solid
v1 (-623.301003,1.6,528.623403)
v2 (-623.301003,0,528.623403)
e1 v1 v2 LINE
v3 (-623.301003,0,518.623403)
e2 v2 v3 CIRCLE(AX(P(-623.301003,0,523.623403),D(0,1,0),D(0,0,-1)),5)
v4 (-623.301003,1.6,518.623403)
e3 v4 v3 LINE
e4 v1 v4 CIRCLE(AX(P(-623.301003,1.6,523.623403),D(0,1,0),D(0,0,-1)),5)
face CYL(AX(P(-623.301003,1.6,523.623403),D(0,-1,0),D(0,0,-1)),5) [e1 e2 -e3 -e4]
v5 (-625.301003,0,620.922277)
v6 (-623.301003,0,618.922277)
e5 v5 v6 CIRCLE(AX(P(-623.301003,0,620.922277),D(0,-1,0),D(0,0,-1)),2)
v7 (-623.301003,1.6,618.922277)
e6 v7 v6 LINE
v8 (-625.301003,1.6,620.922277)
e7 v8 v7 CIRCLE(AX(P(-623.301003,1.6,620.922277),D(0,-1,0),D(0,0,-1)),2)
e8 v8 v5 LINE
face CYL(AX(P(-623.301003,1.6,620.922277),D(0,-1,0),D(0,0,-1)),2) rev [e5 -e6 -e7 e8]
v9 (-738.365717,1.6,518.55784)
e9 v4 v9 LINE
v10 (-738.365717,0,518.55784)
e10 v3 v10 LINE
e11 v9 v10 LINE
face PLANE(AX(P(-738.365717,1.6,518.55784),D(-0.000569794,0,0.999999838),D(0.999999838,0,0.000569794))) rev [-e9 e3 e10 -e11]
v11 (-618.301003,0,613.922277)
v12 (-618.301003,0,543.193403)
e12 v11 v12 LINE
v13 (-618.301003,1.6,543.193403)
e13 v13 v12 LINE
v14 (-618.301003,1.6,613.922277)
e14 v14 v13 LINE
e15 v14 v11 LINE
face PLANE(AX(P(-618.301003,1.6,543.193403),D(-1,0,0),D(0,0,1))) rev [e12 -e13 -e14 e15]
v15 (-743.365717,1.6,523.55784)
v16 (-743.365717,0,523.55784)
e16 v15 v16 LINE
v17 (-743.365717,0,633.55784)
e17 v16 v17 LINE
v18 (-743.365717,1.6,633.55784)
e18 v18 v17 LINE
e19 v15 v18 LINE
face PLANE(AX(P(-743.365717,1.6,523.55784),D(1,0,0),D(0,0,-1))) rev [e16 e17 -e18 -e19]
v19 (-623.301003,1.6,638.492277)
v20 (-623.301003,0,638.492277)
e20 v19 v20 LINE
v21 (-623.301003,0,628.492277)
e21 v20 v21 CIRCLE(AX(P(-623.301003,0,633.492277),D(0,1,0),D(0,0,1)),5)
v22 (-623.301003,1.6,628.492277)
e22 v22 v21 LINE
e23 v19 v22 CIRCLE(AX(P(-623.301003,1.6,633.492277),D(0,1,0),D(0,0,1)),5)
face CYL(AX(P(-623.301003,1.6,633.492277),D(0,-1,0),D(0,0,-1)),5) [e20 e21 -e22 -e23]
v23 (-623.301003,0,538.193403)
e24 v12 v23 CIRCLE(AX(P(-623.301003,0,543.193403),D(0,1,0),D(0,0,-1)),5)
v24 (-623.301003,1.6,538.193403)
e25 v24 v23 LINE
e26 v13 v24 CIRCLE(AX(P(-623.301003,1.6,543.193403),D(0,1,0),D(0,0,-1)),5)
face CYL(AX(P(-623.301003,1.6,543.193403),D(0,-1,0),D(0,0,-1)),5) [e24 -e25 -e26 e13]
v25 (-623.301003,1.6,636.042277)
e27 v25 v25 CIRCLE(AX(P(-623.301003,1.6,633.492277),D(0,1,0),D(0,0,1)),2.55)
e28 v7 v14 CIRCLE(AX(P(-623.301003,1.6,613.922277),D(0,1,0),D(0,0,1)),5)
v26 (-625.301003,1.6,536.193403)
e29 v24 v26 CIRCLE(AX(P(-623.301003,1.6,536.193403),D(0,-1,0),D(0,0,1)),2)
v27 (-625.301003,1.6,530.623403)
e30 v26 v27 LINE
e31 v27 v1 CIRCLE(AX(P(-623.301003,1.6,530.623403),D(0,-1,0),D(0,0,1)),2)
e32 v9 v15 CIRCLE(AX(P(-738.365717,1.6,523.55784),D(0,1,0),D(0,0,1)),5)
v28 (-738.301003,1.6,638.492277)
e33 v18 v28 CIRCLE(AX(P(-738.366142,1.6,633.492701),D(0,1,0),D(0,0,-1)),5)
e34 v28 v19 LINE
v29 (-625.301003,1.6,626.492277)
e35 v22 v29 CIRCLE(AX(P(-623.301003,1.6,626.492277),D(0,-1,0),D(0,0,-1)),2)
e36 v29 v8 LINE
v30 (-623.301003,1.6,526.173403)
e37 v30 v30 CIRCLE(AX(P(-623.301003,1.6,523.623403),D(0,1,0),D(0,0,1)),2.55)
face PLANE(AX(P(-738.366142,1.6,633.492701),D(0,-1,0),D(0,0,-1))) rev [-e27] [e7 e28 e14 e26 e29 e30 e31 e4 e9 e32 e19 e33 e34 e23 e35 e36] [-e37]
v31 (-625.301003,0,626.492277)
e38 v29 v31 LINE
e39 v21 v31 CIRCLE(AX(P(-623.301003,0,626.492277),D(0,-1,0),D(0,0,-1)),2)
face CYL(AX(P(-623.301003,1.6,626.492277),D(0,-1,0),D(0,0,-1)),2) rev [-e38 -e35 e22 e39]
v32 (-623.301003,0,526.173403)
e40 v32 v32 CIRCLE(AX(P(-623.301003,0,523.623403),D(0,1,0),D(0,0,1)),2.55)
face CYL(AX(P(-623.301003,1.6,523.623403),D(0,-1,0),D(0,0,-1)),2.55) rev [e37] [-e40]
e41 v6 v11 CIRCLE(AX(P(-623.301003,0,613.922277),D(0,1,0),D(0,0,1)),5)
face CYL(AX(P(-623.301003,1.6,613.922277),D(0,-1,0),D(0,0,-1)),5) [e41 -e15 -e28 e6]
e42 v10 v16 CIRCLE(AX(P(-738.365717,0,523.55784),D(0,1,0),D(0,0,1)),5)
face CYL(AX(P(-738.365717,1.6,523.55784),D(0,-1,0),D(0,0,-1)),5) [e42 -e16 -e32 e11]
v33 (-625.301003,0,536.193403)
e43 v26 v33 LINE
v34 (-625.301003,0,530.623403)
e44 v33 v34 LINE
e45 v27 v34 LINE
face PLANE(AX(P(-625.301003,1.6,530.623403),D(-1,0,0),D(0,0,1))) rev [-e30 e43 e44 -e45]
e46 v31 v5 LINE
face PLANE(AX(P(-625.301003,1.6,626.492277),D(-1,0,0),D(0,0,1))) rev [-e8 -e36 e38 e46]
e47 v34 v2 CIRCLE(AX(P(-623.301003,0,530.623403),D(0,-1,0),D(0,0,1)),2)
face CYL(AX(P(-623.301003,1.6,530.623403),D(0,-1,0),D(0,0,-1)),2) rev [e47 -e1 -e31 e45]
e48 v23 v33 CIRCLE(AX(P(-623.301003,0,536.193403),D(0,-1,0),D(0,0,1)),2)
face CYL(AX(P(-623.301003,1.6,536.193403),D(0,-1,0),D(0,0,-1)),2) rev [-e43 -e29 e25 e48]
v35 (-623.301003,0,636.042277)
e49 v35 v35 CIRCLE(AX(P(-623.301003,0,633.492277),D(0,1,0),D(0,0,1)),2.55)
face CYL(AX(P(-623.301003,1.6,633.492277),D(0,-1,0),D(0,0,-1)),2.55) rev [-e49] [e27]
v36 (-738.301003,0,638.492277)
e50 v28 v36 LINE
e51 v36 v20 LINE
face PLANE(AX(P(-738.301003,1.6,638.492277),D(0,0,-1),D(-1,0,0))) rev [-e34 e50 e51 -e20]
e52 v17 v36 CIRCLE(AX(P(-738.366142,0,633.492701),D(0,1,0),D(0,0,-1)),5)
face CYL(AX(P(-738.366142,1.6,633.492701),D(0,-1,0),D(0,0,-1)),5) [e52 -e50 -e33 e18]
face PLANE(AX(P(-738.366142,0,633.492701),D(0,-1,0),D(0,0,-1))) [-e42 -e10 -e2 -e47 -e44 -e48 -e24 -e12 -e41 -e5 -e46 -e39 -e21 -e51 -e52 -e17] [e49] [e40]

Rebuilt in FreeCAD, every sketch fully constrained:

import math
import FreeCAD as App
import Part
import Sketcher

V = App.Vector
Q = App.Units.Quantity

doc = App.newDocument("Part")
body = doc.addObject("PartDesign::Body", "Body")

# Sketch on XZ plane
sketch1 = doc.addObject("Sketcher::SketchObject", "Sketch")
body.addObject(sketch1)
sketch1.AttachmentSupport = (doc.XZ_Plane, [""])
sketch1.MapMode = "FlatFace"
sketch1.addGeometry([
    Part.LineSegment(V(-738.3, 638.5, 0), V(-623.3, 638.5, 0)),  # 0
    Part.ArcOfCircle(Part.Circle(V(-623.3, 633.5, 0), V(0, 0, 1), 5), math.radians(0), math.radians(90)),  # 1
    Part.ArcOfCircle(Part.Circle(V(-623.3, 633.5, 0), V(0, 0, 1), 5), math.radians(-90), math.radians(0)),  # 2
    Part.ArcOfCircle(Part.Circle(V(-623.3, 626.5, 0), V(0, 0, 1), 2), math.radians(90), math.radians(180)),  # 3
    Part.LineSegment(V(-625.3, 626.5, 0), V(-625.3, 620.9, 0)),  # 4
    Part.ArcOfCircle(Part.Circle(V(-623.3, 620.9, 0), V(0, 0, 1), 2), math.radians(180), math.radians(270)),  # 5
    Part.ArcOfCircle(Part.Circle(V(-623.3, 613.9, 0), V(0, 0, 1), 5), math.radians(0), math.radians(90)),  # 6
    Part.LineSegment(V(-618.3, 613.9, 0), V(-618.3, 543.2, 0)),  # 7
    Part.ArcOfCircle(Part.Circle(V(-623.3, 543.2, 0), V(0, 0, 1), 5), math.radians(-90), math.radians(0)),  # 8
    Part.ArcOfCircle(Part.Circle(V(-623.3, 536.2, 0), V(0, 0, 1), 2), math.radians(90), math.radians(180)),  # 9
    Part.LineSegment(V(-625.3, 536.2, 0), V(-625.3, 530.6, 0)),  # 10
    Part.ArcOfCircle(Part.Circle(V(-623.3, 530.6, 0), V(0, 0, 1), 2), math.radians(-180), math.radians(-90)),  # 11
    Part.ArcOfCircle(Part.Circle(V(-623.3, 523.6, 0), V(0, 0, 1), 5), math.radians(0), math.radians(90)),  # 12
    Part.ArcOfCircle(Part.Circle(V(-623.3, 523.6, 0), V(0, 0, 1), 5), math.radians(-90), math.radians(0)),  # 13
    Part.LineSegment(V(-623.3, 518.6, 0), V(-738.4, 518.6, 0)),  # 14
    Part.ArcOfCircle(Part.Circle(V(-738.4, 523.6, 0), V(0, 0, 1), 5), math.radians(180), math.radians(270)),  # 15
    Part.LineSegment(V(-743.4, 523.6, 0), V(-743.4, 633.6, 0)),  # 16
    Part.ArcOfCircle(Part.Circle(V(-738.4, 633.5, 0), V(0, 0, 1), 5), math.radians(89), math.radians(179)),  # 17
    Part.Circle(V(-623.3, 633.5, 0), V(0, 0, 1), 2.5),  # 18
    Part.Circle(V(-623.3, 523.6, 0), V(0, 0, 1), 2.5),  # 19
], False)
sketch1.addConstraint([
    Sketcher.Constraint("Tangent", 0, 2, 1, 2),
    Sketcher.Constraint("Tangent", 1, 1, 2, 2),
    Sketcher.Constraint("Tangent", 2, 1, 3, 1),
    Sketcher.Constraint("Tangent", 3, 2, 4, 1),
    Sketcher.Constraint("Tangent", 4, 2, 5, 1),
    Sketcher.Constraint("Tangent", 5, 2, 6, 2),
    Sketcher.Constraint("Tangent", 6, 1, 7, 1),
    Sketcher.Constraint("Tangent", 7, 2, 8, 2),
    Sketcher.Constraint("Tangent", 8, 1, 9, 1),
    Sketcher.Constraint("Tangent", 9, 2, 10, 1),
    Sketcher.Constraint("Tangent", 10, 2, 11, 1),
    Sketcher.Constraint("Tangent", 11, 2, 12, 2),
    Sketcher.Constraint("Tangent", 12, 1, 13, 2),
    Sketcher.Constraint("Coincident", 13, 1, 14, 1),
    Sketcher.Constraint("Coincident", 14, 2, 15, 2),
    Sketcher.Constraint("Tangent", 15, 1, 16, 1),
    Sketcher.Constraint("Coincident", 16, 2, 17, 2),
    Sketcher.Constraint("Coincident", 17, 1, 0, 1),
    Sketcher.Constraint("Horizontal", 0),
    Sketcher.Constraint("Vertical", 4),
    Sketcher.Constraint("Vertical", 7),
    Sketcher.Constraint("Vertical", 10),
    Sketcher.Constraint("Vertical", 16),
    Sketcher.Constraint("Coincident", 18, 3, 1, 3),
    Sketcher.Constraint("Coincident", 19, 3, 12, 3),
    Sketcher.Constraint("Equal", 1, 2),
    Sketcher.Constraint("Equal", 3, 5),
    Sketcher.Constraint("Equal", 2, 6),
    Sketcher.Constraint("Equal", 6, 8),
    Sketcher.Constraint("Equal", 5, 9),
    Sketcher.Constraint("Equal", 9, 11),
    Sketcher.Constraint("Equal", 8, 12),
    Sketcher.Constraint("Equal", 12, 13),
    Sketcher.Constraint("Equal", 13, 15),
    Sketcher.Constraint("Equal", 15, 17),
    Sketcher.Constraint("Equal", 18, 19),
    Sketcher.Constraint("Horizontal", 18, 3, 1, 1),
    Sketcher.Constraint("Horizontal", 19, 3, 12, 1),
    Sketcher.Constraint("Vertical", 2, 3, 3, 3),
    Sketcher.Constraint("Vertical", 5, 3, 6, 3),
    Sketcher.Constraint("Vertical", 8, 3, 9, 3),
    Sketcher.Constraint("Vertical", 11, 3, 12, 3),
    Sketcher.Constraint("Vertical", 11, 2, 13, 1),
    Sketcher.Constraint("Vertical", 15, 3, 14, 2),
    Sketcher.Constraint("Equal", 4, 10),
    Sketcher.Constraint("Radius", 1, Q("5 mm")),
    Sketcher.Constraint("Radius", 3, Q("2 mm")),
    Sketcher.Constraint("Diameter", 18, Q("5.1 mm")),
    Sketcher.Constraint("DistanceX", 0, 1, 0, 2, Q("115 mm")),
    Sketcher.Constraint("DistanceY", 16, 1, 16, 2, Q("110 mm")),
    Sketcher.Constraint("DistanceY", 4, 2, 4, 1, Q("5.57 mm")),
    Sketcher.Constraint("DistanceY", -1, 1, 17, 3, Q("633.492701 mm")),
    Sketcher.Constraint("DistanceY", 7, 2, 7, 1, Q("70.728874 mm")),
    Sketcher.Constraint("DistanceY", -1, 1, 15, 3, Q("523.55784 mm")),
    Sketcher.Constraint("DistanceX", 17, 3, -1, 1, Q("738.366142 mm")),
    Sketcher.Constraint("DistanceX", 17, 3, 1, 3, Q("115.065139 mm")),
])
pad1 = doc.addObject("PartDesign::Pad", "Pad")
body.addObject(pad1)
pad1.Profile = sketch1
pad1.Length = 1.6
pad1.Reversed = True

doc.recompute()
